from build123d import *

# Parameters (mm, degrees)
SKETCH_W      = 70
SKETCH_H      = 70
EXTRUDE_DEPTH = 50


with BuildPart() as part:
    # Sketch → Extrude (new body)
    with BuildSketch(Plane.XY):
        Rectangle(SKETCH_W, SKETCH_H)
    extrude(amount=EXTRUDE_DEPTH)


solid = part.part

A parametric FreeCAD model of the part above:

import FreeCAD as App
import Part
import Sketcher
from FreeCAD import Vector


def add_polygon(sketch, points):
    """Adds a closed chain of lines whose ends are joined by coincident constraints."""
    first, n = sketch.GeometryCount, len(points)
    for a, b in zip(points, points[1:] + points[:1]):
        sketch.addGeometry(Part.LineSegment(App.Vector(*a, 0), App.Vector(*b, 0)), False)
    for i in range(n):
        sketch.addConstraint(Sketcher.Constraint("Coincident", first + i, 2, first + (i + 1) % n, 1))

doc = App.newDocument("Part")
body = doc.addObject("PartDesign::Body", "Body")

sketch1 = doc.addObject("Sketcher::SketchObject", "Sketch")
body.addObject(sketch1)
sketch1.AttachmentSupport = (doc.XY_Plane, [""])
sketch1.MapMode = "FlatFace"
add_polygon(sketch1, [(-35, 35), (-35, -35), (35, -35), (35, 35)])
sketch1.addConstraint([
    Sketcher.Constraint("Vertical", 0),
    Sketcher.Constraint("Horizontal", 1),
    Sketcher.Constraint("Vertical", 2),
    Sketcher.Constraint("Horizontal", 3),
    Sketcher.Constraint("Symmetric", 0, 2, 2, 2, -1, 1),
    Sketcher.Constraint("Equal", 3, 0),
    Sketcher.Constraint("DistanceX", 1, 1, 1, 2, 70.0),
])
pad1 = doc.addObject("PartDesign::Pad", "Pad")
body.addObject(pad1)
pad1.Profile = sketch1
pad1.Length = 50

doc.recompute()
